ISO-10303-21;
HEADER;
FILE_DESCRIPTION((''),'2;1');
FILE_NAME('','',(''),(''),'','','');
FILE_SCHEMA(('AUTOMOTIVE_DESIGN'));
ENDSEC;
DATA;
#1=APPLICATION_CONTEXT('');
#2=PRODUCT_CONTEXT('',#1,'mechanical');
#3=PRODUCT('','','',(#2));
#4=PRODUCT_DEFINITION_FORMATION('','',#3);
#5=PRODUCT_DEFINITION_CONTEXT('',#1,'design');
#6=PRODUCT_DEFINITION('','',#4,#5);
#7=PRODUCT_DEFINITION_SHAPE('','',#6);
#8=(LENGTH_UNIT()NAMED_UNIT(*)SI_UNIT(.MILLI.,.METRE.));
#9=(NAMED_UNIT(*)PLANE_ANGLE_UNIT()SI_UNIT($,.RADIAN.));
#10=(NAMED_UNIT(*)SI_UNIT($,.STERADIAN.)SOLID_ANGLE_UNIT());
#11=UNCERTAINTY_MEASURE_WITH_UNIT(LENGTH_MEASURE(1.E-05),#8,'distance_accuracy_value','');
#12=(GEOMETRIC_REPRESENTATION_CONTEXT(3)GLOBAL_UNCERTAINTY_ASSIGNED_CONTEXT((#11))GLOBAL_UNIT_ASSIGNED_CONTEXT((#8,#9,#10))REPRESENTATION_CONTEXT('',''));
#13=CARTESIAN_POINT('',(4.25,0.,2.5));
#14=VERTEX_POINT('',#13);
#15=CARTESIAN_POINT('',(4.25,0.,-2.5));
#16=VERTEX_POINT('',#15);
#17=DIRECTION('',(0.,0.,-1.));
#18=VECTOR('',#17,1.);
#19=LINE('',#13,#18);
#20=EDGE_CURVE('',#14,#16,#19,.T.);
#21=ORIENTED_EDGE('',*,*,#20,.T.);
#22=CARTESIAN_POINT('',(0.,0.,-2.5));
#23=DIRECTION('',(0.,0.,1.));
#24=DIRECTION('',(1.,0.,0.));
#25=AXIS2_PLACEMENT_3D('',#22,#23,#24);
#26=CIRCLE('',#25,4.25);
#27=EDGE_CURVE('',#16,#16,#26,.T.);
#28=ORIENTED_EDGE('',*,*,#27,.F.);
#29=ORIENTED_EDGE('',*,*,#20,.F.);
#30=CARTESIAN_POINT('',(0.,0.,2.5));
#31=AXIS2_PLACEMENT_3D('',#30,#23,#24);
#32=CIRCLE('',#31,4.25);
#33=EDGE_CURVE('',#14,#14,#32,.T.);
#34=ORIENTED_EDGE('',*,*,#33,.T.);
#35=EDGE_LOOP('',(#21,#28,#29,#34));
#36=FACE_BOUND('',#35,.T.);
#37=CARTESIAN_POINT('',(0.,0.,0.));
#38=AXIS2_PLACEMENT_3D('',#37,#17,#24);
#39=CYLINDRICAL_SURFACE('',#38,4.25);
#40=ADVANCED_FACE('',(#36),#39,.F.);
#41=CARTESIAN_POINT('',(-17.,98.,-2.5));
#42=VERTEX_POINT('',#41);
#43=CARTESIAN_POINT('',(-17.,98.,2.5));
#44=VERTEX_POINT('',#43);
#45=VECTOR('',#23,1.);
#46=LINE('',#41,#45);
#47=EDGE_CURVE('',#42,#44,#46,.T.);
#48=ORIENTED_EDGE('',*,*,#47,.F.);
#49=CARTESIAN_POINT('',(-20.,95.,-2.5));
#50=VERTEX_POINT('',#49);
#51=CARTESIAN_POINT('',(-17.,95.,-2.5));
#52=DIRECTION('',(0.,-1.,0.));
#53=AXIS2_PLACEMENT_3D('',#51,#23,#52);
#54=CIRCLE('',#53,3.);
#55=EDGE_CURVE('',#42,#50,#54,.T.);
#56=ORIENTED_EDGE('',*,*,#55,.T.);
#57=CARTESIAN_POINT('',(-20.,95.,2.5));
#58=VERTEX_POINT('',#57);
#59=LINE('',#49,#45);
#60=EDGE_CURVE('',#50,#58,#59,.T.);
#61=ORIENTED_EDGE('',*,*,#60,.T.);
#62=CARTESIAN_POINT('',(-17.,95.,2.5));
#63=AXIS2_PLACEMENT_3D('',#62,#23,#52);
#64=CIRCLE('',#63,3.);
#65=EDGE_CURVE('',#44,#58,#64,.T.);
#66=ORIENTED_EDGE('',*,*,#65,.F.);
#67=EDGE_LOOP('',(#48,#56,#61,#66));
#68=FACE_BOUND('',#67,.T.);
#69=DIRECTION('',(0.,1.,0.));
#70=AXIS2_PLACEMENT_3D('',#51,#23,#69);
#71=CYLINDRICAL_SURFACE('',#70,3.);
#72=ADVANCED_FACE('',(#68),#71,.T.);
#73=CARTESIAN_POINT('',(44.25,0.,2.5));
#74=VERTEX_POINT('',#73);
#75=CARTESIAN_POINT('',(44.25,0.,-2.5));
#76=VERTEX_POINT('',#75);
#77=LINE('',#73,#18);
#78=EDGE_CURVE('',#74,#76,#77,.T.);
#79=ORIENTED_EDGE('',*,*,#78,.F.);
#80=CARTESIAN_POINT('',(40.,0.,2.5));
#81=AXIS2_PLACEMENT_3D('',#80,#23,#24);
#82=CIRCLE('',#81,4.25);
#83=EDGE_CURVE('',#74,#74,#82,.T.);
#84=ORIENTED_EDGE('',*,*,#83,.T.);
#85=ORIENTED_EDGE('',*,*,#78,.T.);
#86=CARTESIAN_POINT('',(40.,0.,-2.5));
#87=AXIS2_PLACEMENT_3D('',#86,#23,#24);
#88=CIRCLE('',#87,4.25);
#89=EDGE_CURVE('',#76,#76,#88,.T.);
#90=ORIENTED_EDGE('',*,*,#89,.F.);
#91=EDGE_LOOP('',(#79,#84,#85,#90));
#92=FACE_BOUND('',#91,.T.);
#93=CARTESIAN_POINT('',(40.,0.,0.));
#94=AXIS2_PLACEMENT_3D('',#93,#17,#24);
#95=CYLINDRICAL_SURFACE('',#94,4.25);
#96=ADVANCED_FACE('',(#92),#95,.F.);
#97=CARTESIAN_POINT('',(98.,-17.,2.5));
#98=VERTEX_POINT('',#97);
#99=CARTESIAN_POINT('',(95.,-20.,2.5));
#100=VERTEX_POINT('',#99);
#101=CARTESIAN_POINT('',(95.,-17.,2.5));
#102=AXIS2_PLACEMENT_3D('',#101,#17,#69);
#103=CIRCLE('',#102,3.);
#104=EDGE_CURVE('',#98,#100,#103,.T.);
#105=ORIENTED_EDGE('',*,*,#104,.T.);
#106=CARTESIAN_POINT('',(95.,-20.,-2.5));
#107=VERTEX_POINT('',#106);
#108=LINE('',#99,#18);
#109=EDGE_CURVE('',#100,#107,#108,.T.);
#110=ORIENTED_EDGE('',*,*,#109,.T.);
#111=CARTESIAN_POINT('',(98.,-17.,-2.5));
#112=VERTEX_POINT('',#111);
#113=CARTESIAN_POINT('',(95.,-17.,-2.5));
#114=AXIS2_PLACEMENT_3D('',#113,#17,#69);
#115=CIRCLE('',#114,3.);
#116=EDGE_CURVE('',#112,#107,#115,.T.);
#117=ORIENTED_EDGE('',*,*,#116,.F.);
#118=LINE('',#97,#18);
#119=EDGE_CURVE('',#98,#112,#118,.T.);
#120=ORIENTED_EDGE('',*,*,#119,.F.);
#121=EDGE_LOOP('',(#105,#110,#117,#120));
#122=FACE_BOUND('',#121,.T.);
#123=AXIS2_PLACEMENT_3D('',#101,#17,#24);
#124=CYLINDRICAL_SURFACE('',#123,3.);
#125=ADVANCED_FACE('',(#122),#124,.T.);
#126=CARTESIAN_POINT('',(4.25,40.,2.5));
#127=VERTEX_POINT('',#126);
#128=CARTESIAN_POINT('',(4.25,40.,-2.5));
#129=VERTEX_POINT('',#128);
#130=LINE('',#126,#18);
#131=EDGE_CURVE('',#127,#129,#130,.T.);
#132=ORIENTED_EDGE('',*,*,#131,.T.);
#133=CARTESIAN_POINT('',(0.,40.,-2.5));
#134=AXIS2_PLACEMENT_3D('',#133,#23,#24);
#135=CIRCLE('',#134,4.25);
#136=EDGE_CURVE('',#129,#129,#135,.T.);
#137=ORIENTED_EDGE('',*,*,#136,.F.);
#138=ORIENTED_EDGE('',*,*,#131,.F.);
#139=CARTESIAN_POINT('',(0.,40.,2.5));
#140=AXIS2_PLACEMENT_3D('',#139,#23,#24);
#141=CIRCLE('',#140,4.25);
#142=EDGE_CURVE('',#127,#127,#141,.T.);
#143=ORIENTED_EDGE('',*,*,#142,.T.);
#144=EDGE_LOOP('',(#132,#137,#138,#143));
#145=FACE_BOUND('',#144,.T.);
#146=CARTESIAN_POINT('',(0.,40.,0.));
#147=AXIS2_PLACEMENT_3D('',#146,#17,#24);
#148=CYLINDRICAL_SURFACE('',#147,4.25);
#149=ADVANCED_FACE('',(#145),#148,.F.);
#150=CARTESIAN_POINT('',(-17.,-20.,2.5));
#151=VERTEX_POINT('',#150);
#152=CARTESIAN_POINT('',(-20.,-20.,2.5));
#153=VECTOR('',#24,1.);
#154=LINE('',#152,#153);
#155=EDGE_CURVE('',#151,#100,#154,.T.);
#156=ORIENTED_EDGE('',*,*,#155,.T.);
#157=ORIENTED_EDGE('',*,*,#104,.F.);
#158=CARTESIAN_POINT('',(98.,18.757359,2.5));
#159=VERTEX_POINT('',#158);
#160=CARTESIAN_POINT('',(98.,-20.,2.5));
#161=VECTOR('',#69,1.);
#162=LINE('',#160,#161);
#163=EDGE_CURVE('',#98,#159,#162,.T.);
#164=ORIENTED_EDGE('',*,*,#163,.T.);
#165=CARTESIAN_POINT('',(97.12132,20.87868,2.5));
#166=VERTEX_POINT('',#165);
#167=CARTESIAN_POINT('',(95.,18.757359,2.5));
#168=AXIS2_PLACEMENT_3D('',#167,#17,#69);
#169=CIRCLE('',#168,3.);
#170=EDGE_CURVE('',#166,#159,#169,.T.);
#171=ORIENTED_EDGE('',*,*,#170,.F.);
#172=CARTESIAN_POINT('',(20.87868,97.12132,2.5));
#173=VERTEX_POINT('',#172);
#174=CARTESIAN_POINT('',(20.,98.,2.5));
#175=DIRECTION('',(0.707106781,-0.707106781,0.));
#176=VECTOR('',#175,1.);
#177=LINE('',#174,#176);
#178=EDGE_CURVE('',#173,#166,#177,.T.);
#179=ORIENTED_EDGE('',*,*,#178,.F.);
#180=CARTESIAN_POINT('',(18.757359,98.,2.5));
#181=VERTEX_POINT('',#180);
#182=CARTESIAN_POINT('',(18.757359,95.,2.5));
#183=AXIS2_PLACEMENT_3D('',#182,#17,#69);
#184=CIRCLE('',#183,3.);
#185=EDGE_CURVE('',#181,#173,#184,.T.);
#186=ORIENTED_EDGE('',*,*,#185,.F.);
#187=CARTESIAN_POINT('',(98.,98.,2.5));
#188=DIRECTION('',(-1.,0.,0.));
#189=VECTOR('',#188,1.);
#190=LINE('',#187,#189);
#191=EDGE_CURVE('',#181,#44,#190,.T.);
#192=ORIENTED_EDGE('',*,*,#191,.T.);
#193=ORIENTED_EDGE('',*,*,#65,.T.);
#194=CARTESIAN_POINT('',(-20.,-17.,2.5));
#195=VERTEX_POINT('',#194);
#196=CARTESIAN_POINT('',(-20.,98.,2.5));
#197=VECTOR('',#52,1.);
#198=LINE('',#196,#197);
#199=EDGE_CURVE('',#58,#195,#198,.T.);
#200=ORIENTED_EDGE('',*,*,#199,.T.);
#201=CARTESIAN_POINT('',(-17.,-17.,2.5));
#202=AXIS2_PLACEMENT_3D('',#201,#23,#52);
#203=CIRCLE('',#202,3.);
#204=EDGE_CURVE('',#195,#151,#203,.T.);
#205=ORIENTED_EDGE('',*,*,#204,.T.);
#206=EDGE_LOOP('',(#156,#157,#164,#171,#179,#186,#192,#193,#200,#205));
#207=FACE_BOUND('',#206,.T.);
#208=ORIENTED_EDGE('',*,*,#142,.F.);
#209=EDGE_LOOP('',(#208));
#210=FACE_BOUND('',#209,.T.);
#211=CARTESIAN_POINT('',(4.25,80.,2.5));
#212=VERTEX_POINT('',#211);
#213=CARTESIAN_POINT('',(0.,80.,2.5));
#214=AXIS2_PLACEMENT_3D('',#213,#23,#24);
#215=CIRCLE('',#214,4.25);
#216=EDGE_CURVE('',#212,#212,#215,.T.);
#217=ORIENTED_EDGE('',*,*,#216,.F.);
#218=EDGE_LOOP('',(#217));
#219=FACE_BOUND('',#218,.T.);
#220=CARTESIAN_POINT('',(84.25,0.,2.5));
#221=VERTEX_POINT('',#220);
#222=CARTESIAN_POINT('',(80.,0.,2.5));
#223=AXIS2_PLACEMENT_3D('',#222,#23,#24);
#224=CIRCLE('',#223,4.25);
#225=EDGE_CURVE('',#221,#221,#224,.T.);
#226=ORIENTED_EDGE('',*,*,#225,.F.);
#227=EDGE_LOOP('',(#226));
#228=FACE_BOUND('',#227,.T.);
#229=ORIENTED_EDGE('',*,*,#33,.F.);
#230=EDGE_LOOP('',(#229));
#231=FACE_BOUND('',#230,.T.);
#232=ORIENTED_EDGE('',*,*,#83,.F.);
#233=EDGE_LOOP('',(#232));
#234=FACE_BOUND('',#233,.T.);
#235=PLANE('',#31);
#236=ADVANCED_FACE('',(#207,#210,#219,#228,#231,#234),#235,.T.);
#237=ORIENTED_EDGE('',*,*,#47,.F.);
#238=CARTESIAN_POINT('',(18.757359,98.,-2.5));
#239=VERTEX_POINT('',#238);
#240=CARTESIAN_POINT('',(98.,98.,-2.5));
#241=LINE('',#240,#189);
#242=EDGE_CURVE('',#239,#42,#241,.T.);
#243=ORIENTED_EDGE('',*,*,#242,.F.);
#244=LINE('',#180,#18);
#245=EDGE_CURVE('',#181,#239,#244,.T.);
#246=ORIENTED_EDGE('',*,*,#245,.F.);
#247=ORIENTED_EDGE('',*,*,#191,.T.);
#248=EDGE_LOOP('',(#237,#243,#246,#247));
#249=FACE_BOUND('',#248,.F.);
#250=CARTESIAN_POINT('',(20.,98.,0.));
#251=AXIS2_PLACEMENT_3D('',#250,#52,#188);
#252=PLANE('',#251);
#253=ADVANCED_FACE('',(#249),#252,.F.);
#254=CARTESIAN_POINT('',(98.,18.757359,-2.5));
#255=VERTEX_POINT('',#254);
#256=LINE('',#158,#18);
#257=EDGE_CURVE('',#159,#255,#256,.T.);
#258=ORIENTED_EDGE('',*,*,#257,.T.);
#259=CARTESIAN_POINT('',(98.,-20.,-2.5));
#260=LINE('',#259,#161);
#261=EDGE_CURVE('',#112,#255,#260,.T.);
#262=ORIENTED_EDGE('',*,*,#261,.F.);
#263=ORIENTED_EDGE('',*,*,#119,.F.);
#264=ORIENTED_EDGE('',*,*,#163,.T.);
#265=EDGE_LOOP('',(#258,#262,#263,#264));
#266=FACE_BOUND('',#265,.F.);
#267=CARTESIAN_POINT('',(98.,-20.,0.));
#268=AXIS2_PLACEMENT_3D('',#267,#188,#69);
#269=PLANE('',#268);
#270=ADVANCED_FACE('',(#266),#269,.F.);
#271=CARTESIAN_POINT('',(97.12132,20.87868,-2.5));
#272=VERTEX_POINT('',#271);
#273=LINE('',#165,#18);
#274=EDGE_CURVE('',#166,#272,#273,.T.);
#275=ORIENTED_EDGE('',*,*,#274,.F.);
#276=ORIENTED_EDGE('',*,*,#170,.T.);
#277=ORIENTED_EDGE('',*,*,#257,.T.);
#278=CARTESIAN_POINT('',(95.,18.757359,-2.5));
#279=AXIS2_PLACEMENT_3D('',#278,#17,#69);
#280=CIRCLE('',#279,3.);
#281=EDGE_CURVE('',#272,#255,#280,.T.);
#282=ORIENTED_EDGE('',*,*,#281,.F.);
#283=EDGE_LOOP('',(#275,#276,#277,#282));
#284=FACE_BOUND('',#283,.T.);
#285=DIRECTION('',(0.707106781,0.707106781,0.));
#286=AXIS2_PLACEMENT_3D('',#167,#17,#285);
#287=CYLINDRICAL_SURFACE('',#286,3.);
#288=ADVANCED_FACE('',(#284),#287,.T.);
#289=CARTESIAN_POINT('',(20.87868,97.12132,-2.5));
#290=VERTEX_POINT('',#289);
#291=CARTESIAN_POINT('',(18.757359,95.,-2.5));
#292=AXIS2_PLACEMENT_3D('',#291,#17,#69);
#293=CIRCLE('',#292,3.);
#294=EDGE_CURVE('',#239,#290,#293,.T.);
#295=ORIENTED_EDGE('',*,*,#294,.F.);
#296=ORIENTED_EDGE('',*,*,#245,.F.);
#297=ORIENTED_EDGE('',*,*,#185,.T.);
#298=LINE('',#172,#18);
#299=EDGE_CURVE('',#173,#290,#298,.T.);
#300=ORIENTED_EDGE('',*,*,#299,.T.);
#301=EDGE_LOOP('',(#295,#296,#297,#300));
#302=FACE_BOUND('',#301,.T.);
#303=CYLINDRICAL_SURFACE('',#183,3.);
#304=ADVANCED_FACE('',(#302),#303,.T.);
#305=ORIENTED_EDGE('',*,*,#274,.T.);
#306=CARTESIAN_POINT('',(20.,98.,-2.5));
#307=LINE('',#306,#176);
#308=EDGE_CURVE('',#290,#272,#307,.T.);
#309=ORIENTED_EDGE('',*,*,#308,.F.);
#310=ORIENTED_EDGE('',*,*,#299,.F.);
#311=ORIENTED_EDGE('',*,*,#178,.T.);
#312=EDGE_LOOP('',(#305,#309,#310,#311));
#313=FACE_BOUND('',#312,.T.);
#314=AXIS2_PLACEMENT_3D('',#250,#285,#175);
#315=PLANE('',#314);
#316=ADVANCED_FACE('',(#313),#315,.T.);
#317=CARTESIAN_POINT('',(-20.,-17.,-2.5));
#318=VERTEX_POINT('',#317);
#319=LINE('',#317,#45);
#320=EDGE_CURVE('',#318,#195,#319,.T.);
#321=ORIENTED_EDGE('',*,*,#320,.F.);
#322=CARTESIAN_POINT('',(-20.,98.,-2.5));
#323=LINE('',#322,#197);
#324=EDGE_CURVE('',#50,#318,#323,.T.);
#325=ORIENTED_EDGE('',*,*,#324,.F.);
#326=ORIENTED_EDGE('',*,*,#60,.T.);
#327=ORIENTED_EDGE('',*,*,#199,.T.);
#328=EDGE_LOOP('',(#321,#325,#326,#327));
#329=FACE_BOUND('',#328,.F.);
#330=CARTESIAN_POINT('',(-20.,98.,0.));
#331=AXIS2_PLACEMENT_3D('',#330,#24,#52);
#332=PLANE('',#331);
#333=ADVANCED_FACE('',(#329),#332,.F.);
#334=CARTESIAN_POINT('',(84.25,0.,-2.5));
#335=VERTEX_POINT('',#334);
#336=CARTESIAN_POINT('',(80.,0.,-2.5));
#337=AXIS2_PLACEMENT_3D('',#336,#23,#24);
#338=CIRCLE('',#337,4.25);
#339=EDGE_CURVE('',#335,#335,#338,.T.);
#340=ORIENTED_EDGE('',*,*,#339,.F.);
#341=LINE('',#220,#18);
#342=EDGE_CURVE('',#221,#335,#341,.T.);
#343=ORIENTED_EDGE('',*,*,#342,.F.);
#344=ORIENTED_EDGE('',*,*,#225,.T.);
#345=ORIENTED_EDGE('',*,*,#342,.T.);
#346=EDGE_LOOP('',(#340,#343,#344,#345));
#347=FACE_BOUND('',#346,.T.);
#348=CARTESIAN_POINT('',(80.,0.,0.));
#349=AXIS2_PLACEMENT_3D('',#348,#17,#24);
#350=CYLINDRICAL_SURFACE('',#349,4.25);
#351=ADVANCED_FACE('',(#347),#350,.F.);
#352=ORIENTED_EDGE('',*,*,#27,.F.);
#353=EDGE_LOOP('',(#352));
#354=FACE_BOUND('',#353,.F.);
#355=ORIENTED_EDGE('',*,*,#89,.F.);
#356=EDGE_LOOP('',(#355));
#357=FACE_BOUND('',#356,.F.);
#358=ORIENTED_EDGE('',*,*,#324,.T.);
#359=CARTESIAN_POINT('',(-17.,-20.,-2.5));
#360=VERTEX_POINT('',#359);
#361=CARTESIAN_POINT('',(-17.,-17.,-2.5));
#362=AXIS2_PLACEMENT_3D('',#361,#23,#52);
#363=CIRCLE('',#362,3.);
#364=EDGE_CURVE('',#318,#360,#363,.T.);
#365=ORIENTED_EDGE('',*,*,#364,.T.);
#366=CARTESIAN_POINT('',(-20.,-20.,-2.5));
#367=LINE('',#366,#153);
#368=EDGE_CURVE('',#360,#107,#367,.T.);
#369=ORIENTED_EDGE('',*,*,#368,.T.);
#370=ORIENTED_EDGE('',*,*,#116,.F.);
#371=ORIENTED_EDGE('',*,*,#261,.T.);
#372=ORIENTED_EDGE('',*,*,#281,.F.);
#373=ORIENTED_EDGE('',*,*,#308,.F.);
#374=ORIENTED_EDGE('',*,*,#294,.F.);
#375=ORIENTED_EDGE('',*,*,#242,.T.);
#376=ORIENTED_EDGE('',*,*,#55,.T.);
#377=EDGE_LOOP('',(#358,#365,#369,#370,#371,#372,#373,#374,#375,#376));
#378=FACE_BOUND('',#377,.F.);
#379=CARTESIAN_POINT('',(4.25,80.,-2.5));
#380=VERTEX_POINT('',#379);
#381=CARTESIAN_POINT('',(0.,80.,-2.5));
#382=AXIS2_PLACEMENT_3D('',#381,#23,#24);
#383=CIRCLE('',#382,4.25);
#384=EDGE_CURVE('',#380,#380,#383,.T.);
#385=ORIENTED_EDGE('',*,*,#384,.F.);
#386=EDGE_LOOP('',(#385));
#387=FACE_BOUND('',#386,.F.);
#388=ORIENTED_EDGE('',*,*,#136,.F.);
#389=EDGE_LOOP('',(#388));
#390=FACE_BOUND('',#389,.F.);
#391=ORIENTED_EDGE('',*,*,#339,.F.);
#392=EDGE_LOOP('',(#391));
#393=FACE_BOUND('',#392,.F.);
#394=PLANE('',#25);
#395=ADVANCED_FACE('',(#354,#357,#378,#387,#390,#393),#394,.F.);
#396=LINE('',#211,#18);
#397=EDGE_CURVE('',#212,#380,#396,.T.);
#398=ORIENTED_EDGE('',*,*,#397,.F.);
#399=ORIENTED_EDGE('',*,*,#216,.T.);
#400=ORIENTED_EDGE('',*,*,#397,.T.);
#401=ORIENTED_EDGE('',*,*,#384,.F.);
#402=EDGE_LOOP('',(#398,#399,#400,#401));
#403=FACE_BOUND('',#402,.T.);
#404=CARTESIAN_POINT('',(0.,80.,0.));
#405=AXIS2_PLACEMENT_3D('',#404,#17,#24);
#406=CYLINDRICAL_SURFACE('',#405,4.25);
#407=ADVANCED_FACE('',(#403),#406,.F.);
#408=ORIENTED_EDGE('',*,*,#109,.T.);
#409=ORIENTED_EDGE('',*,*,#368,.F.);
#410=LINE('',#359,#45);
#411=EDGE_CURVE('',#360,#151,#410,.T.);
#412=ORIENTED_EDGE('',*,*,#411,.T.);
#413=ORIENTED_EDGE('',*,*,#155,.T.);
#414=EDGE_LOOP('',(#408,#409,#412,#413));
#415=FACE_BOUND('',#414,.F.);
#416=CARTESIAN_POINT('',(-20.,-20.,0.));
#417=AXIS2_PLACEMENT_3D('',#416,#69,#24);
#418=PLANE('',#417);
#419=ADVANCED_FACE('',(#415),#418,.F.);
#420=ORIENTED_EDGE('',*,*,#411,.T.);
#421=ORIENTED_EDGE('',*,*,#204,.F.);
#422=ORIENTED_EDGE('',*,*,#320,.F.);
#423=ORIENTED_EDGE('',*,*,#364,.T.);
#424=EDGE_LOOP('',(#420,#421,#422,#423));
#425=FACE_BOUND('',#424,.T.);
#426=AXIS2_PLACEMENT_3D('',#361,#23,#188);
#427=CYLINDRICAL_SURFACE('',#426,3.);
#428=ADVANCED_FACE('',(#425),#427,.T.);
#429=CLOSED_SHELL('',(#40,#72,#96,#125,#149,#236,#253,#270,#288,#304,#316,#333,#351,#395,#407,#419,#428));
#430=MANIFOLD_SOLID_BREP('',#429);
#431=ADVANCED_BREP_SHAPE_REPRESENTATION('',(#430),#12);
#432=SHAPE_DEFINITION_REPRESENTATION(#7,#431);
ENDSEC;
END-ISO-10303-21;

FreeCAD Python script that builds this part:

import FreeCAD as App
import Part
import Sketcher
from FreeCAD import Vector
Q = App.Units.Quantity


def edges_at(feature, points):
    """Names of the edges that pass closest to the given points."""
    edges = feature.Shape.Edges
    near = lambda p: min(range(len(edges)), key=lambda i: edges[i].distToShape(Part.Vertex(*p))[0])
    return sorted({f"Edge{near(p) + 1}" for p in points})


def add_polygon(sketch, points):
    """Adds a closed chain of lines whose ends are joined by coincident constraints."""
    first, n = sketch.GeometryCount, len(points)
    for a, b in zip(points, points[1:] + points[:1]):
        sketch.addGeometry(Part.LineSegment(App.Vector(*a, 0), App.Vector(*b, 0)), False)
    for i in range(n):
        sketch.addConstraint(Sketcher.Constraint("Coincident", first + i, 2, first + (i + 1) % n, 1))

doc = App.newDocument("Part")
body = doc.addObject("PartDesign::Body", "Body")

# Sketch on XY plane
sketch1 = body.newObject("Sketcher::SketchObject", "Sketch")
sketch1.AttachmentSupport = (doc.getObject("XY_Plane"), [""])
sketch1.MapMode = "FlatFace"
add_polygon(sketch1, [(20, 98), (-20, 98), (-20, -20), (98, -20), (98, 20)])  # lines 0-4
sketch1.addGeometry(Part.Circle(Vector(0, 0, 0), Vector(0, 0, 1), 4.2), False)  # 5
sketch1.addGeometry(Part.Circle(Vector(40, 0, 0), Vector(0, 0, 1), 4.2), False)  # 6
sketch1.addGeometry(Part.Circle(Vector(80, 0, 0), Vector(0, 0, 1), 4.2), False)  # 7
sketch1.addGeometry(Part.Circle(Vector(0, 40, 0), Vector(0, 0, 1), 4.2), False)  # 8
sketch1.addGeometry(Part.Circle(Vector(0, 80, 0), Vector(0, 0, 1), 4.2), False)  # 9
sketch1.addConstraint(Sketcher.Constraint("Horizontal", 0))
sketch1.addConstraint(Sketcher.Constraint("Vertical", 1))
sketch1.addConstraint(Sketcher.Constraint("Horizontal", 2))
sketch1.addConstraint(Sketcher.Constraint("Vertical", 3))
sketch1.addConstraint(Sketcher.Constraint("Coincident", 5, 3, -1, 1))
sketch1.addConstraint(Sketcher.Constraint("Equal", 5, 6))
sketch1.addConstraint(Sketcher.Constraint("Equal", 6, 7))
sketch1.addConstraint(Sketcher.Constraint("Equal", 7, 8))
sketch1.addConstraint(Sketcher.Constraint("Equal", 8, 9))
sketch1.addConstraint(Sketcher.Constraint("PointOnObject", 6, 3, -1))
sketch1.addConstraint(Sketcher.Constraint("PointOnObject", 7, 3, -1))
sketch1.addConstraint(Sketcher.Constraint("PointOnObject", 8, 3, -2))
sketch1.addConstraint(Sketcher.Constraint("PointOnObject", 9, 3, -2))
sketch1.addConstraint(Sketcher.Constraint("Equal", 2, 1))
sketch1.addConstraint(Sketcher.Constraint("Equal", 0, 3))
sketch1.addConstraint(Sketcher.Constraint("Diameter", 5, Q("8.5 mm")))
sketch1.addConstraint(Sketcher.Constraint("DistanceX", 0, 2, 0, 1, Q("40 mm")))
sketch1.addConstraint(Sketcher.Constraint("DistanceX", 2, 1, 2, 2, Q("118 mm")))
sketch1.addConstraint(Sketcher.Constraint("DistanceX", -1, 1, 6, 3, Q("40 mm")))
sketch1.addConstraint(Sketcher.Constraint("DistanceX", -1, 1, 7, 3, Q("80 mm")))
sketch1.addConstraint(Sketcher.Constraint("DistanceY", -1, 1, 8, 3, Q("40 mm")))
sketch1.addConstraint(Sketcher.Constraint("DistanceY", -1, 1, 9, 3, Q("80 mm")))
sketch1.addConstraint(Sketcher.Constraint("DistanceX", 0, 2, -1, 1, Q("20 mm")))
sketch1.addConstraint(Sketcher.Constraint("DistanceY", 1, 2, -1, 1, Q("20 mm")))
pad1 = body.newObject("PartDesign::Pad", "Pad")
pad1.Profile = sketch1
pad1.Length = 5
pad1.Midplane = True
doc.recompute()

fillet = body.newObject("PartDesign::Fillet", "Fillet")
fillet.Base = (pad1, edges_at(pad1, [
    (-20, 98, 0),
    (20, 98, 0),
    (-20, -20, 0),
    (98, 20, 0),
    (98, -20, 0),
]))
fillet.Radius = 3

doc.recompute()
